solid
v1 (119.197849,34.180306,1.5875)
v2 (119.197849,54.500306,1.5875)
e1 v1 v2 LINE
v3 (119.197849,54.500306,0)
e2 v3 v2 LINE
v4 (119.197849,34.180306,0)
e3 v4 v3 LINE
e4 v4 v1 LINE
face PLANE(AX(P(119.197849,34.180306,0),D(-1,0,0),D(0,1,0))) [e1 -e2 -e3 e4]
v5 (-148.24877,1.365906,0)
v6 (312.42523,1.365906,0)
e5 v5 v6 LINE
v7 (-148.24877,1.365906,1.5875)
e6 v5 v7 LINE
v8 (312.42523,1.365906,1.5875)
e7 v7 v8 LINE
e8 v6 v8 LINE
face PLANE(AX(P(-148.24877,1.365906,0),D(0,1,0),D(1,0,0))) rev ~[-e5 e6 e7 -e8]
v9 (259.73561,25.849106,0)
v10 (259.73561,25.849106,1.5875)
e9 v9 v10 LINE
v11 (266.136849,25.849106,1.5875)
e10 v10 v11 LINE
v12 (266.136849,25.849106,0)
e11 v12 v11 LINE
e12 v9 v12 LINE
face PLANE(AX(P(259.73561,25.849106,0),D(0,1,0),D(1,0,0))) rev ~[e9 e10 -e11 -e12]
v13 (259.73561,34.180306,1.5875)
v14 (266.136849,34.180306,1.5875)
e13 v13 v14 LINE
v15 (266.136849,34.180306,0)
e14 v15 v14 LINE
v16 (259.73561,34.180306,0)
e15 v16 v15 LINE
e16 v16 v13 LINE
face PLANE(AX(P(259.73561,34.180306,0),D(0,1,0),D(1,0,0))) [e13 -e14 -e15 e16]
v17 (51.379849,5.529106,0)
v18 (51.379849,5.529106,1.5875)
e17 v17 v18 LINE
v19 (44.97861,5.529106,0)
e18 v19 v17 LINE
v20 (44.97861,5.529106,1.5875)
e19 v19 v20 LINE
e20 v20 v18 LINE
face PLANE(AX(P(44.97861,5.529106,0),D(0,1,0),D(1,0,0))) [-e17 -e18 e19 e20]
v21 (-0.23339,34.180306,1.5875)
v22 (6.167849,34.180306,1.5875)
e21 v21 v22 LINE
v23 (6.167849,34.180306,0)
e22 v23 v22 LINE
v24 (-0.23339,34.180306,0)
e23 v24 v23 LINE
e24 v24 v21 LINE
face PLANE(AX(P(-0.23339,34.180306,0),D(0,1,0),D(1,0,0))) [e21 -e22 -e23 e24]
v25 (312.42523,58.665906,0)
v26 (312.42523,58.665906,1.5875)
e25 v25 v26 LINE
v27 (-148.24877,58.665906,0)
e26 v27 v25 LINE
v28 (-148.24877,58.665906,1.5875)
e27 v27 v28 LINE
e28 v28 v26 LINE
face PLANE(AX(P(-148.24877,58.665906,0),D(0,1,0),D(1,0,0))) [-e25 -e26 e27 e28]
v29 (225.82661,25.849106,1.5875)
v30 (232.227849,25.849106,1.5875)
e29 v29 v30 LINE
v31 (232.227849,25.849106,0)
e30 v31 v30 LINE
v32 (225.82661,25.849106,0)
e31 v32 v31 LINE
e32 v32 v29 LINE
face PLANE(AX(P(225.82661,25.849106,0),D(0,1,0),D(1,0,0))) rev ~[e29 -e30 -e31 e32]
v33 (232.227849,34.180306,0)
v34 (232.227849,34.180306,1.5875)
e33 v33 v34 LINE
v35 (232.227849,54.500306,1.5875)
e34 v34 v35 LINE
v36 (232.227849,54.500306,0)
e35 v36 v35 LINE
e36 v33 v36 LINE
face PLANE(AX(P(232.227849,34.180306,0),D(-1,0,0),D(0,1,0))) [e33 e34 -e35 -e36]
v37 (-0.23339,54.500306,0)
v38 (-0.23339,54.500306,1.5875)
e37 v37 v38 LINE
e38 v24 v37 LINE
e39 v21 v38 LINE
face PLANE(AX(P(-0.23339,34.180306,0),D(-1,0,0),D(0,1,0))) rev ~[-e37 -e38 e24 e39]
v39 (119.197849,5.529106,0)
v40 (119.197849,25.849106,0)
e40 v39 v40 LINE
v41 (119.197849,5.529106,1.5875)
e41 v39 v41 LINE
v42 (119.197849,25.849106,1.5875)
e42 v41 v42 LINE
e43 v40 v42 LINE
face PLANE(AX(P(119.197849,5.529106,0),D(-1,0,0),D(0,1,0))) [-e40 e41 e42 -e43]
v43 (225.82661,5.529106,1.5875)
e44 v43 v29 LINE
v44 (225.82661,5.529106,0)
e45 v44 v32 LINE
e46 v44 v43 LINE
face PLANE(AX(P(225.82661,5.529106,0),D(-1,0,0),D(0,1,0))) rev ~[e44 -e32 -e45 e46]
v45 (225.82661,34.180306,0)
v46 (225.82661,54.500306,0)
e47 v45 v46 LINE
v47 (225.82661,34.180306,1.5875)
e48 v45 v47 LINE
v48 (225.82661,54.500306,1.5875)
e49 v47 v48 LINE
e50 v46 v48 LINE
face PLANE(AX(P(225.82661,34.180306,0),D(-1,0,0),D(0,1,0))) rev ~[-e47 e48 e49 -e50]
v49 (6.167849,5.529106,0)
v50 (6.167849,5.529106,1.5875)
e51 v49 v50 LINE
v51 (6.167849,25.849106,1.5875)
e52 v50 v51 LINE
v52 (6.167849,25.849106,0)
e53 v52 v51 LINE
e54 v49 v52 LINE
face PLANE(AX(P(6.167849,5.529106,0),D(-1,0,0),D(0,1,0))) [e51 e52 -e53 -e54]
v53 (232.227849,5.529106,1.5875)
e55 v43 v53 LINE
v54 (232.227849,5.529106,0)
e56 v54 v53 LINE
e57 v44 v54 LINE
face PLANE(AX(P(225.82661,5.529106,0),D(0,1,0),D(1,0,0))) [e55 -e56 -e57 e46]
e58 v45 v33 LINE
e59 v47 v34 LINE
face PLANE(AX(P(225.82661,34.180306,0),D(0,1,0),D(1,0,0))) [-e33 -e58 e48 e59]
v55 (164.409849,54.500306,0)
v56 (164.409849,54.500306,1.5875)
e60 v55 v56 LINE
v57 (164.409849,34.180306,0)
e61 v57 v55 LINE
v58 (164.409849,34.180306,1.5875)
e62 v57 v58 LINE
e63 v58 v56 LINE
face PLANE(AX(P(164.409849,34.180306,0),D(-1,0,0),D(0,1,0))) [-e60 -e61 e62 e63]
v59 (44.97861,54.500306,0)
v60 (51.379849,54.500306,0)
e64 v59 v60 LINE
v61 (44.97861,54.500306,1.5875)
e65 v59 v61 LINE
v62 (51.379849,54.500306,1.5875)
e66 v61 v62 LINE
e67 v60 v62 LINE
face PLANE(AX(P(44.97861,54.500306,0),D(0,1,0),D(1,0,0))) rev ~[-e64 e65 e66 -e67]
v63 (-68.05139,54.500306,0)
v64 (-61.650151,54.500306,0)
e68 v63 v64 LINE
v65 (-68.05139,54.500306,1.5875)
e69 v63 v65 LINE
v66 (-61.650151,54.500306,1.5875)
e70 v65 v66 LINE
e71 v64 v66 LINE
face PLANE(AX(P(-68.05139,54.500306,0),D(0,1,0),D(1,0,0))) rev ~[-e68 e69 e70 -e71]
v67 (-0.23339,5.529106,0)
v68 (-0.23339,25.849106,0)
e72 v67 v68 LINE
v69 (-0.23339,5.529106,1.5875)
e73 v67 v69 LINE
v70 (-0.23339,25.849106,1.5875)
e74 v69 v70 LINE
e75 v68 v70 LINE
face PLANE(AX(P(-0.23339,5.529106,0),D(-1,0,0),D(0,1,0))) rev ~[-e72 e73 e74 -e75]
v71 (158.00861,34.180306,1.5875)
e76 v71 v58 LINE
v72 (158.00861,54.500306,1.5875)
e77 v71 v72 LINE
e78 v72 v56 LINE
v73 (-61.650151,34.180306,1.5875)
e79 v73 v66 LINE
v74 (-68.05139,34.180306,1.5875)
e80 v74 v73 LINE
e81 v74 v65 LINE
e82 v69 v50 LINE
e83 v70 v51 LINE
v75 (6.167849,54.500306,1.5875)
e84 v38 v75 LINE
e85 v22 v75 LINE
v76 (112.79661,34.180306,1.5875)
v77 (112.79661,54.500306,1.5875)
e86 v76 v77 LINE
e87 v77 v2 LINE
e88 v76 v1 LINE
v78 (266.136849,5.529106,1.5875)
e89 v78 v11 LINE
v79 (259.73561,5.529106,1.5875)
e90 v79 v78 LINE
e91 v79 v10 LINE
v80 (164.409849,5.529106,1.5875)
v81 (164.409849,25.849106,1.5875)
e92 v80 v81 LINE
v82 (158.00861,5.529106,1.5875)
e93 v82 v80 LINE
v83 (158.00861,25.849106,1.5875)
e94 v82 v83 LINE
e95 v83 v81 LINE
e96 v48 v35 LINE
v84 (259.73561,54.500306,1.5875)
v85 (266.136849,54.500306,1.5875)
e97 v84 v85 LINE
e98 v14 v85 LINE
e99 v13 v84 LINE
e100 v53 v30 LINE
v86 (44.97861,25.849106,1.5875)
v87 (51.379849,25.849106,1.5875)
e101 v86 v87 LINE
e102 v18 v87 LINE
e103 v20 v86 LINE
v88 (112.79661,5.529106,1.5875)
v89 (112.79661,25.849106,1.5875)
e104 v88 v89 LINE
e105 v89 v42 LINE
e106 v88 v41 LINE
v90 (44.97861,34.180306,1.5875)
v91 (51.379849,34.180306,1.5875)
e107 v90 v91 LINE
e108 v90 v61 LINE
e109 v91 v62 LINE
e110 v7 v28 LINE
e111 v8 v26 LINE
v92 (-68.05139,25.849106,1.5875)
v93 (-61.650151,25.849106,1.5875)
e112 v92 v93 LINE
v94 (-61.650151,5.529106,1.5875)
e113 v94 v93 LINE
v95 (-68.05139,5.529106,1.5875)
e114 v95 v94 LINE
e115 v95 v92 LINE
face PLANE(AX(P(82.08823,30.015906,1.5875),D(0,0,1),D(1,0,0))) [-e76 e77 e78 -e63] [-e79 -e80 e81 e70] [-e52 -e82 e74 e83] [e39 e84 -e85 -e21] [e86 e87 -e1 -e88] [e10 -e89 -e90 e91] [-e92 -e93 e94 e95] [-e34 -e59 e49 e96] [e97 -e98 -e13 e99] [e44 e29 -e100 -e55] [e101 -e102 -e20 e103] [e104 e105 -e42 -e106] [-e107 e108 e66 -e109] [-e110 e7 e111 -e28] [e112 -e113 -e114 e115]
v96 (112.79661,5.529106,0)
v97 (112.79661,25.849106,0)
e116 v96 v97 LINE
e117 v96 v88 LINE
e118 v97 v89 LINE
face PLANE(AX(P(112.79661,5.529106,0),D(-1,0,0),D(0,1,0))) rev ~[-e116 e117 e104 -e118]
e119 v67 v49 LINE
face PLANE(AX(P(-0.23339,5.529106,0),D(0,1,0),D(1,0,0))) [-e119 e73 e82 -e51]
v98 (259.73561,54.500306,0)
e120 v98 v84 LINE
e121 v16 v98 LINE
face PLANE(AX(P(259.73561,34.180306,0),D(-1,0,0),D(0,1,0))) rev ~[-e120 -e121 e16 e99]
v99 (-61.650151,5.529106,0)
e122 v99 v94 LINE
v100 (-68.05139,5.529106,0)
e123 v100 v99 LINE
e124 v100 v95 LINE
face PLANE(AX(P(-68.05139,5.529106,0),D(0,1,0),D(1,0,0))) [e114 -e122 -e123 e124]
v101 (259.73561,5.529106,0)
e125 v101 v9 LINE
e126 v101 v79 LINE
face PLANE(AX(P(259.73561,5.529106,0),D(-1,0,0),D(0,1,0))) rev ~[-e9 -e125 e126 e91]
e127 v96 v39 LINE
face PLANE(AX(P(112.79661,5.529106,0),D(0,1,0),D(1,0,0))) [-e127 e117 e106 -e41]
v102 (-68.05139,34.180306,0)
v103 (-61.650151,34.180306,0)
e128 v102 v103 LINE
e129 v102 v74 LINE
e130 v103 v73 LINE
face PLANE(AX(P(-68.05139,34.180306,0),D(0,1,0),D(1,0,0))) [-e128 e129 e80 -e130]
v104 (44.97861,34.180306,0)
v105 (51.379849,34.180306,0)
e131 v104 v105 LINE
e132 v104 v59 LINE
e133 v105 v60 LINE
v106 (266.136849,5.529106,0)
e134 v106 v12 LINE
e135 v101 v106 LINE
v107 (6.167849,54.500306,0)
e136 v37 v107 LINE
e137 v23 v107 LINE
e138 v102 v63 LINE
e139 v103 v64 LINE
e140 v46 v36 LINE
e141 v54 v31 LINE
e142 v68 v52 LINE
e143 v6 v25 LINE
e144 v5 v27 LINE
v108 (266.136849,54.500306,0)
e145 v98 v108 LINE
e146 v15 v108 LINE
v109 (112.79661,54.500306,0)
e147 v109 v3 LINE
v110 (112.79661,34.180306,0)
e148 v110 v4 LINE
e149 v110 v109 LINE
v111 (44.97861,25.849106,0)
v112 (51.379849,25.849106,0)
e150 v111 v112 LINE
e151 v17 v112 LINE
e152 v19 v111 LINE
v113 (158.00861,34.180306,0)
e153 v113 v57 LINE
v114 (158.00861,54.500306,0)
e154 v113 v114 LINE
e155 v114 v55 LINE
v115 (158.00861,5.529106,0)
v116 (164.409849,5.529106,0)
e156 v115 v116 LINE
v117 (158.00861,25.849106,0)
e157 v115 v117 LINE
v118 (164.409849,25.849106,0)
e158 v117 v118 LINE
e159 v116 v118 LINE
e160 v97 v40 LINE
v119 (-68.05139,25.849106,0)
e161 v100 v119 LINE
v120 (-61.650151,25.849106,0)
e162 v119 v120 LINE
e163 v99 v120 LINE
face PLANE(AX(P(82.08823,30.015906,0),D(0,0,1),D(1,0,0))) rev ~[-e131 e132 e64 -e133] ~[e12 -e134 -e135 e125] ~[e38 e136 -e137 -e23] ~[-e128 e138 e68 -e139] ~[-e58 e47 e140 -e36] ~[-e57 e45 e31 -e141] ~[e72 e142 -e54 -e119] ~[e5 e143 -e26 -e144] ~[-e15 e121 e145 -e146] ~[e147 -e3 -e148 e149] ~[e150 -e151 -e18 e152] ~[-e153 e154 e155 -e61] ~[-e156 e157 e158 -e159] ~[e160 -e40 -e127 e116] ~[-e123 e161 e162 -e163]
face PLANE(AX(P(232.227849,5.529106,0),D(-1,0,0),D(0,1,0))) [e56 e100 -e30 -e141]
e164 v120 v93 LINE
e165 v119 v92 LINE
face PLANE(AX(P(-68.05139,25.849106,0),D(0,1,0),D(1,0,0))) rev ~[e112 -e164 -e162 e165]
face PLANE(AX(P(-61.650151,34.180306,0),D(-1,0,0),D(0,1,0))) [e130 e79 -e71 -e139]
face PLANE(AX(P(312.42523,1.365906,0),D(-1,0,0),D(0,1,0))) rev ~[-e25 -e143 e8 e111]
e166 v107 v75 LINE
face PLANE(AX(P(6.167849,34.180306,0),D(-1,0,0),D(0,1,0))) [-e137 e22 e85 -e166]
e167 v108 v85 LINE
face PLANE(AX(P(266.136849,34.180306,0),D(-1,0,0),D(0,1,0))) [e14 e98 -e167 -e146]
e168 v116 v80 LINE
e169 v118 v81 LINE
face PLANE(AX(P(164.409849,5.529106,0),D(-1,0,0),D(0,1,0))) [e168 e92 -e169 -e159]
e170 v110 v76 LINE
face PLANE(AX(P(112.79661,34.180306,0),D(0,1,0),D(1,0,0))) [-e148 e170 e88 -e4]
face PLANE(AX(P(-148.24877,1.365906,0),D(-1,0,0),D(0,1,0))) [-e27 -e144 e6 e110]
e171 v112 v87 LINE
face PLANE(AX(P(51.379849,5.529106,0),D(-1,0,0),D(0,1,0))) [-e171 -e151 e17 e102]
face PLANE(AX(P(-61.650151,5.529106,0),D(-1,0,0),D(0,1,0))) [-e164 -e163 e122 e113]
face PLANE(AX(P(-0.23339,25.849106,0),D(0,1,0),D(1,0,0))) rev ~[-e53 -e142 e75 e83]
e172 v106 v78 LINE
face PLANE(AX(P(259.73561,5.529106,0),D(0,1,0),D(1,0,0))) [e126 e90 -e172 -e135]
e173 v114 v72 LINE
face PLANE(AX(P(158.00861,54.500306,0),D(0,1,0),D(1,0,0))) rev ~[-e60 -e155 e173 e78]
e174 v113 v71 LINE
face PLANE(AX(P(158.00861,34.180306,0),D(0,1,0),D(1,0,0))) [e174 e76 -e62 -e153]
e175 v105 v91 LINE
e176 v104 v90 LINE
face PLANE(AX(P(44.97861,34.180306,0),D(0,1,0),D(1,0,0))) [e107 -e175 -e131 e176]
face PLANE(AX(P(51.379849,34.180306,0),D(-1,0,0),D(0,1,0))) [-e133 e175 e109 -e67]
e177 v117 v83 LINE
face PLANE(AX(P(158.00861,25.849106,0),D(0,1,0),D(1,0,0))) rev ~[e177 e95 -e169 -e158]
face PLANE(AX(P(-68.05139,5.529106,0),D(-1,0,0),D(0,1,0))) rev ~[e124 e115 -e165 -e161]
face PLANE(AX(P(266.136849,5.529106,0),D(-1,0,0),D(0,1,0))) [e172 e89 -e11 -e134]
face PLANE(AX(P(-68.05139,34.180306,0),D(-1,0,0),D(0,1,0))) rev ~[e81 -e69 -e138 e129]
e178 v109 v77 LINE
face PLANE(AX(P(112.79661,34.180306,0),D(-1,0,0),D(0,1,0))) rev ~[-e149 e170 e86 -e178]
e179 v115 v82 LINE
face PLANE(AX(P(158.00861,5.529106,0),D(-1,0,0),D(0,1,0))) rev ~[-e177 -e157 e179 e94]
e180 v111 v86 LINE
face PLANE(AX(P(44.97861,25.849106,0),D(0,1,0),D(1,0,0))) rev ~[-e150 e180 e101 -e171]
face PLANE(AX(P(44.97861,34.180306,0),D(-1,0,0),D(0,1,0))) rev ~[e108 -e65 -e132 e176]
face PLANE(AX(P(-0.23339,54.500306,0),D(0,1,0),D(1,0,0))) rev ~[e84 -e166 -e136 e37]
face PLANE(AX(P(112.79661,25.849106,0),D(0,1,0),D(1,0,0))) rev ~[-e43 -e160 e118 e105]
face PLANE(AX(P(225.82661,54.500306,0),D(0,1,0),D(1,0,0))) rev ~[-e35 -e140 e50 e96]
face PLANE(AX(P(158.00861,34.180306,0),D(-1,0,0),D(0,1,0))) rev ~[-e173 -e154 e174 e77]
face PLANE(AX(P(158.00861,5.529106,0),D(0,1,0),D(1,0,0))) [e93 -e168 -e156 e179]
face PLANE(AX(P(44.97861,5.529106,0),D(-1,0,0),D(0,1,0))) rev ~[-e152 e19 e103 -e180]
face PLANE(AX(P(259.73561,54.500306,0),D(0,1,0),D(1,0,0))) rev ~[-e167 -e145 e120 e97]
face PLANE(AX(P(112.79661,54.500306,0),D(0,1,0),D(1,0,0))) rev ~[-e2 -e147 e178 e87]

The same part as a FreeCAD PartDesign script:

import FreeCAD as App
import Part
import Sketcher
Q = App.Units.Quantity


def add_polygon(sketch, points):
    """Adds a closed chain of lines whose ends are joined by coincident constraints."""
    first, n = sketch.GeometryCount, len(points)
    for a, b in zip(points, points[1:] + points[:1]):
        sketch.addGeometry(Part.LineSegment(App.Vector(*a, 0), App.Vector(*b, 0)), False)
    for i in range(n):
        sketch.addConstraint(Sketcher.Constraint("Coincident", first + i, 2, first + (i + 1) % n, 1))

doc = App.newDocument("Part")
params = doc.addObject("Spreadsheet::Sheet", "Params")
for row, (alias, value) in enumerate([
    ("sketch1_height", "0.8 in"),
    ("pad1_length", "0.0625 in"),
], start=1):
    params.set(f"A{row}", alias)
    params.set(f"B{row}", "=" + value)
    params.setAlias(f"B{row}", alias)

body = doc.addObject("PartDesign::Body", "Body")

sketch1 = body.newObject("Sketcher::SketchObject", "Sketch")
sketch1.AttachmentSupport = (doc.getObject("XY_Plane"), [""])
sketch1.MapMode = "FlatFace"
add_polygon(sketch1, [(-148, 59), (-148, 1), (312, 1), (312, 59)])
add_polygon(sketch1, [(-62, 6), (-68, 6), (-68, 26), (-62, 26)])
add_polygon(sketch1, [(6, 6), (0, 6), (0, 26), (6, 26)])
add_polygon(sketch1, [(51, 6), (45, 6), (45, 26), (51, 26)])
add_polygon(sketch1, [(119, 6), (113, 6), (113, 26), (119, 26)])
add_polygon(sketch1, [(164, 6), (158, 6), (158, 26), (164, 26)])
add_polygon(sketch1, [(232, 6), (226, 6), (226, 26), (232, 26)])
add_polygon(sketch1, [(266, 6), (260, 6), (260, 26), (266, 26)])
add_polygon(sketch1, [(-62, 34), (-68, 34), (-68, 55), (-62, 55)])
add_polygon(sketch1, [(6, 34), (0, 34), (0, 55), (6, 55)])
add_polygon(sketch1, [(51, 34), (45, 34), (45, 55), (51, 55)])
add_polygon(sketch1, [(119, 34), (113, 34), (113, 55), (119, 55)])
add_polygon(sketch1, [(164, 34), (158, 34), (158, 55), (164, 55)])
add_polygon(sketch1, [(232, 34), (226, 34), (226, 55), (232, 55)])
add_polygon(sketch1, [(266, 34), (260, 34), (260, 55), (266, 55)])
sketch1.addConstraint([
    Sketcher.Constraint("Vertical", 0),
    Sketcher.Constraint("Horizontal", 1),
    Sketcher.Constraint("Vertical", 2),
    Sketcher.Constraint("Horizontal", 3),
    Sketcher.Constraint("Horizontal", 4),
    Sketcher.Constraint("Vertical", 5),
    Sketcher.Constraint("Horizontal", 6),
    Sketcher.Constraint("Vertical", 7),
    Sketcher.Constraint("Horizontal", 8),
    Sketcher.Constraint("Vertical", 9),
    Sketcher.Constraint("Horizontal", 10),
    Sketcher.Constraint("Vertical", 11),
    Sketcher.Constraint("Horizontal", 12),
    Sketcher.Constraint("Vertical", 13),
    Sketcher.Constraint("Horizontal", 14),
    Sketcher.Constraint("Vertical", 15),
    Sketcher.Constraint("Horizontal", 16),
    Sketcher.Constraint("Vertical", 17),
    Sketcher.Constraint("Horizontal", 18),
    Sketcher.Constraint("Vertical", 19),
    Sketcher.Constraint("Horizontal", 20),
    Sketcher.Constraint("Vertical", 21),
    Sketcher.Constraint("Horizontal", 22),
    Sketcher.Constraint("Vertical", 23),
    Sketcher.Constraint("Horizontal", 24),
    Sketcher.Constraint("Vertical", 25),
    Sketcher.Constraint("Horizontal", 26),
    Sketcher.Constraint("Vertical", 27),
    Sketcher.Constraint("Horizontal", 28),
    Sketcher.Constraint("Vertical", 29),
    Sketcher.Constraint("Horizontal", 30),
    Sketcher.Constraint("Vertical", 31),
    Sketcher.Constraint("Horizontal", 32),
    Sketcher.Constraint("Vertical", 33),
    Sketcher.Constraint("Horizontal", 34),
    Sketcher.Constraint("Vertical", 35),
    Sketcher.Constraint("Horizontal", 36),
    Sketcher.Constraint("Vertical", 37),
    Sketcher.Constraint("Horizontal", 38),
    Sketcher.Constraint("Vertical", 39),
    Sketcher.Constraint("Horizontal", 40),
    Sketcher.Constraint("Vertical", 41),
    Sketcher.Constraint("Horizontal", 42),
    Sketcher.Constraint("Vertical", 43),
    Sketcher.Constraint("Horizontal", 44),
    Sketcher.Constraint("Vertical", 45),
    Sketcher.Constraint("Horizontal", 46),
    Sketcher.Constraint("Vertical", 47),
    Sketcher.Constraint("Horizontal", 48),
    Sketcher.Constraint("Vertical", 49),
    Sketcher.Constraint("Horizontal", 50),
    Sketcher.Constraint("Vertical", 51),
    Sketcher.Constraint("Horizontal", 52),
    Sketcher.Constraint("Vertical", 53),
    Sketcher.Constraint("Horizontal", 54),
    Sketcher.Constraint("Vertical", 55),
    Sketcher.Constraint("Horizontal", 56),
    Sketcher.Constraint("Vertical", 57),
    Sketcher.Constraint("Horizontal", 58),
    Sketcher.Constraint("Vertical", 59),
    Sketcher.Constraint("Horizontal", 7, 2, 8, 2),
    Sketcher.Constraint("Horizontal", 6, 2, 9, 2),
    Sketcher.Constraint("Horizontal", 11, 2, 12, 2),
    Sketcher.Constraint("Horizontal", 10, 2, 13, 2),
    Sketcher.Constraint("Horizontal", 15, 2, 16, 2),
    Sketcher.Constraint("Horizontal", 14, 2, 17, 2),
    Sketcher.Constraint("Horizontal", 19, 2, 20, 2),
    Sketcher.Constraint("Horizontal", 18, 2, 21, 2),
    Sketcher.Constraint("Horizontal", 23, 2, 24, 2),
    Sketcher.Constraint("Horizontal", 22, 2, 25, 2),
    Sketcher.Constraint("Horizontal", 27, 2, 28, 2),
    Sketcher.Constraint("Horizontal", 26, 2, 29, 2),
    Sketcher.Constraint("Horizontal", 35, 2, 36, 2),
    Sketcher.Constraint("Horizontal", 34, 2, 37, 2),
    Sketcher.Constraint("Horizontal", 39, 2, 40, 2),
    Sketcher.Constraint("Horizontal", 38, 2, 41, 2),
    Sketcher.Constraint("Horizontal", 43, 2, 44, 2),
    Sketcher.Constraint("Horizontal", 42, 2, 45, 2),
    Sketcher.Constraint("Horizontal", 47, 2, 48, 2),
    Sketcher.Constraint("Horizontal", 46, 2, 49, 2),
    Sketcher.Constraint("Horizontal", 51, 2, 52, 2),
    Sketcher.Constraint("Horizontal", 50, 2, 53, 2),
    Sketcher.Constraint("Horizontal", 55, 2, 56, 2),
    Sketcher.Constraint("Horizontal", 54, 2, 57, 2),
    Sketcher.Constraint("Vertical", 5, 2, 32, 2),
    Sketcher.Constraint("Vertical", 7, 2, 34, 2),
    Sketcher.Constraint("Vertical", 9, 2, 36, 2),
    Sketcher.Constraint("Vertical", 11, 2, 38, 2),
    Sketcher.Constraint("Vertical", 13, 2, 40, 2),
    Sketcher.Constraint("Vertical", 15, 2, 42, 2),
    Sketcher.Constraint("Vertical", 17, 2, 44, 2),
    Sketcher.Constraint("Vertical", 19, 2, 46, 2),
    Sketcher.Constraint("Vertical", 21, 2, 48, 2),
    Sketcher.Constraint("Vertical", 23, 2, 50, 2),
    Sketcher.Constraint("Vertical", 25, 2, 52, 2),
    Sketcher.Constraint("Vertical", 27, 2, 54, 2),
    Sketcher.Constraint("Vertical", 29, 2, 56, 2),
    Sketcher.Constraint("Vertical", 31, 2, 58, 2),
    Sketcher.Constraint("Equal", 6, 8),
    Sketcher.Constraint("Equal", 10, 12),
    Sketcher.Constraint("Equal", 14, 16),
    Sketcher.Constraint("Equal", 18, 20),
    Sketcher.Constraint("Equal", 22, 24),
    Sketcher.Constraint("Equal", 26, 28),
    Sketcher.Constraint("Equal", 31, 33),
    Sketcher.Constraint("DistanceY", 5, 1, 5, 2, Q("0.8 in")),
    Sketcher.Constraint("DistanceX", 4, 2, 8, 2, Q("2.67 in")),
    Sketcher.Constraint("DistanceX", 8, 2, 12, 2, Q("1.78 in")),
    Sketcher.Constraint("DistanceX", 12, 2, 16, 2, Q("2.67 in")),
    Sketcher.Constraint("DistanceX", 16, 2, 20, 2, Q("1.78 in")),
    Sketcher.Constraint("DistanceX", 20, 2, 24, 2, Q("2.67 in")),
    Sketcher.Constraint("DistanceY", 4, 2, 3, 2, Q("2.092 in")),
    Sketcher.Constraint("DistanceX", 24, 2, 28, 2, Q("1.335 in")),
    Sketcher.Constraint("DistanceY", 5, 2, 32, 2, Q("0.328 in")),
    Sketcher.Constraint("DistanceX", 1, 1, 1, 2, 460.674),
    Sketcher.Constraint("DistanceY", 0, 2, 0, 1, 57.3),
    Sketcher.Constraint("DistanceX", 4, 2, 4, 1, 6.401239),
    Sketcher.Constraint("DistanceX", 0, 2, -1, 1, 148.24877),
    Sketcher.Constraint("DistanceX", 4, 2, -1, 1, 68.05139),
    Sketcher.Constraint("DistanceY", -1, 1, 0, 2, 1.365906),
])
sketch1.setExpression("Constraints[165]", "Params.sketch1_height")
pad1 = body.newObject("PartDesign::Pad", "Pad")
pad1.Profile = sketch1
pad1.setExpression("Length", "Params.pad1_length")

doc.recompute()
